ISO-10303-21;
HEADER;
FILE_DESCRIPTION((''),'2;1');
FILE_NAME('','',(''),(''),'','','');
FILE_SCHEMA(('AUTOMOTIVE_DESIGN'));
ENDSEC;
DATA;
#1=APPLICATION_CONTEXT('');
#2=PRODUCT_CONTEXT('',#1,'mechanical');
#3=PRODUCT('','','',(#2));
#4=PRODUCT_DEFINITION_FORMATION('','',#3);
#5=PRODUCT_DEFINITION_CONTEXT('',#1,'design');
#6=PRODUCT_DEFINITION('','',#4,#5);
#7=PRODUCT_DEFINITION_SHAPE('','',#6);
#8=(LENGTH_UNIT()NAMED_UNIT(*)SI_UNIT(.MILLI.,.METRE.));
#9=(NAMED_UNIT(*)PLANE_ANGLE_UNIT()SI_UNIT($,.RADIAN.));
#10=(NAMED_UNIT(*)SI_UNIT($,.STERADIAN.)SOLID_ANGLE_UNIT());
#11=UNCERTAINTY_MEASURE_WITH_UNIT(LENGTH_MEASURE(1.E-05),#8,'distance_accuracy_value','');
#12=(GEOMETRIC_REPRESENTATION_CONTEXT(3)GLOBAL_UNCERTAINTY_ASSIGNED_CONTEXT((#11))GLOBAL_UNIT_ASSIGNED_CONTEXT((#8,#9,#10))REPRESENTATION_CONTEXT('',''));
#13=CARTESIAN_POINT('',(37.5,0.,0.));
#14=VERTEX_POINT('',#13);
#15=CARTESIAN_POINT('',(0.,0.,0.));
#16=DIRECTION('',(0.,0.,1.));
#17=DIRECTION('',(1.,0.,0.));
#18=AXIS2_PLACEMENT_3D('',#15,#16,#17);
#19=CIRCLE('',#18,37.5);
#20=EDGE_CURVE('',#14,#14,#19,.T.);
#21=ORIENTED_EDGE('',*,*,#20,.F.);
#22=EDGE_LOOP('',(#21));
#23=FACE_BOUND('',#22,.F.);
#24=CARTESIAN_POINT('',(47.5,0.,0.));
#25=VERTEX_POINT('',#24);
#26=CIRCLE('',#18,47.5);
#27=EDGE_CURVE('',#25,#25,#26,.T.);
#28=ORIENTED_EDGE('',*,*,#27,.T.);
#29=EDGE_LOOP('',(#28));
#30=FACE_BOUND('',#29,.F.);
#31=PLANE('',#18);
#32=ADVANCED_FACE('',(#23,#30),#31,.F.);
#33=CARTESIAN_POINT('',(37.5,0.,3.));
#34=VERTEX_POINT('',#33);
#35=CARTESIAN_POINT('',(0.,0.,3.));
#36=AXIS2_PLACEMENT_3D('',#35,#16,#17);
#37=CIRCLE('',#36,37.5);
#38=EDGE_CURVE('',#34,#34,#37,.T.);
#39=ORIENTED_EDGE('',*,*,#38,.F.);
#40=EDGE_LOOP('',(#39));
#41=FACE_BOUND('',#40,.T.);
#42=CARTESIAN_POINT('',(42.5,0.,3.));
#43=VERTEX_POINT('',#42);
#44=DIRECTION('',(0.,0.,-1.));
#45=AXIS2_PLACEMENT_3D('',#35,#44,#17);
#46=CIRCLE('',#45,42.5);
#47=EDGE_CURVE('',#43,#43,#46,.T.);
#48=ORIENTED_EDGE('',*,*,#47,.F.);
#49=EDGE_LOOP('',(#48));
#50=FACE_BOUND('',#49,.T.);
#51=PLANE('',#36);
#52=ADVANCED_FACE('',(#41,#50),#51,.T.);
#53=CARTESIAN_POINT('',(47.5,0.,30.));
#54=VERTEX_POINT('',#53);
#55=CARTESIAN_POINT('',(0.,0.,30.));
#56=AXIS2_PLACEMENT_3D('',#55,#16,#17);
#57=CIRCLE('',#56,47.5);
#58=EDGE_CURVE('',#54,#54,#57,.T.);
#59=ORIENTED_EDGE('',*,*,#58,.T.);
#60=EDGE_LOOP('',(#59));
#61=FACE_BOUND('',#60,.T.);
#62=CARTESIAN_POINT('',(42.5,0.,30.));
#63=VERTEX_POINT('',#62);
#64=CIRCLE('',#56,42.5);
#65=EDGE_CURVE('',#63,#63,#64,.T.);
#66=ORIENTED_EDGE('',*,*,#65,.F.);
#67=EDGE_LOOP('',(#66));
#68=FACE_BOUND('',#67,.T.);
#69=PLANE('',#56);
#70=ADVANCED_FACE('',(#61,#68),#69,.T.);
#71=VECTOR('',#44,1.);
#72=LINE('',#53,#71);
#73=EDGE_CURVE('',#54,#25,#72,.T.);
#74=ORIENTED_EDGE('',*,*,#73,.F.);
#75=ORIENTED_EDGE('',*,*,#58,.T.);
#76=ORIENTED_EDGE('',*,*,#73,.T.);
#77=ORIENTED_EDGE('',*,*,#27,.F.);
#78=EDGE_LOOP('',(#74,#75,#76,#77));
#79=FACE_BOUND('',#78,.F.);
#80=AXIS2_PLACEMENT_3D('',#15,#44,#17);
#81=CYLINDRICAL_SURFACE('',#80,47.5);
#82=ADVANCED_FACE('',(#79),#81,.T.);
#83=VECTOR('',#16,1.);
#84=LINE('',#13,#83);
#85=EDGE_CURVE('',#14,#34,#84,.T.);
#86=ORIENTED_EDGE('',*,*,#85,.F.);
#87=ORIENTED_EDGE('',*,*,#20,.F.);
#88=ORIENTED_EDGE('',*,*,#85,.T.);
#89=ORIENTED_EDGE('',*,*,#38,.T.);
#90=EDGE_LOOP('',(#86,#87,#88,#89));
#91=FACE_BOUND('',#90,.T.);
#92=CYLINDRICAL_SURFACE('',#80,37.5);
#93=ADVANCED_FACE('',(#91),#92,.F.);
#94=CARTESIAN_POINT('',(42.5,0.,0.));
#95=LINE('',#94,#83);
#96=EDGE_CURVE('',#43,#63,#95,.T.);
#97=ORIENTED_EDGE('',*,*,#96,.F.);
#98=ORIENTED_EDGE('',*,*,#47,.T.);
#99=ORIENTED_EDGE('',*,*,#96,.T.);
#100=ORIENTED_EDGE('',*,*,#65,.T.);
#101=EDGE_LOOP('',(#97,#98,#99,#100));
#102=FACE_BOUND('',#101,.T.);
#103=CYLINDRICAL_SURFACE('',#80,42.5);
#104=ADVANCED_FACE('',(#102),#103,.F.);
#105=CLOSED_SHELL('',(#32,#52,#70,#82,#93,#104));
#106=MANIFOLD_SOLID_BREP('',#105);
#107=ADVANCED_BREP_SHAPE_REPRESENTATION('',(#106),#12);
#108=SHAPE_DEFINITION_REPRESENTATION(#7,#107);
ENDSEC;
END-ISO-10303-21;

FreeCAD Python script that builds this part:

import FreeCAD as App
import Part
import Sketcher

doc = App.newDocument("Part")
body = doc.addObject("PartDesign::Body", "Body")

sketch1 = body.newObject("Sketcher::SketchObject", "Sketch")
sketch1.AttachmentSupport = (doc.getObject("XY_Plane"), [""])
sketch1.MapMode = "FlatFace"
sketch1.addGeometry([
    Part.Circle(App.Vector(0, 0, 0), App.Vector(0, 0, 1), 48),
    Part.Circle(App.Vector(0, 0, 0), App.Vector(0, 0, 1), 42),
], False)
sketch1.addConstraint([
    Sketcher.Constraint("Coincident", 0, 3, -1, 1),
    Sketcher.Constraint("Coincident", 1, 3, -1, 1),
    Sketcher.Constraint("Diameter", 0, 95.0),
    Sketcher.Constraint("Diameter", 1, 85.0),
])
pad1 = body.newObject("PartDesign::Pad", "Pad")
pad1.Profile = sketch1
pad1.Length = 30

sketch2 = body.newObject("Sketcher::SketchObject", "Sketch001")
sketch2.AttachmentSupport = (doc.getObject("XY_Plane"), [""])
sketch2.MapMode = "FlatFace"
sketch2.addGeometry([
    Part.Circle(App.Vector(0, 0, 0), App.Vector(0, 0, 1), 48),
    Part.Circle(App.Vector(0, 0, 0), App.Vector(0, 0, 1), 38),
], False)
sketch2.addConstraint([
    Sketcher.Constraint("Coincident", 0, 3, -1, 1),
    Sketcher.Constraint("Coincident", 1, 3, -1, 1),
    Sketcher.Constraint("Diameter", 0, 95.0),
    Sketcher.Constraint("Diameter", 1, 75.0),
])
pad2 = body.newObject("PartDesign::Pad", "Pad001")
pad2.Profile = sketch2
pad2.Length = 3

doc.recompute()
